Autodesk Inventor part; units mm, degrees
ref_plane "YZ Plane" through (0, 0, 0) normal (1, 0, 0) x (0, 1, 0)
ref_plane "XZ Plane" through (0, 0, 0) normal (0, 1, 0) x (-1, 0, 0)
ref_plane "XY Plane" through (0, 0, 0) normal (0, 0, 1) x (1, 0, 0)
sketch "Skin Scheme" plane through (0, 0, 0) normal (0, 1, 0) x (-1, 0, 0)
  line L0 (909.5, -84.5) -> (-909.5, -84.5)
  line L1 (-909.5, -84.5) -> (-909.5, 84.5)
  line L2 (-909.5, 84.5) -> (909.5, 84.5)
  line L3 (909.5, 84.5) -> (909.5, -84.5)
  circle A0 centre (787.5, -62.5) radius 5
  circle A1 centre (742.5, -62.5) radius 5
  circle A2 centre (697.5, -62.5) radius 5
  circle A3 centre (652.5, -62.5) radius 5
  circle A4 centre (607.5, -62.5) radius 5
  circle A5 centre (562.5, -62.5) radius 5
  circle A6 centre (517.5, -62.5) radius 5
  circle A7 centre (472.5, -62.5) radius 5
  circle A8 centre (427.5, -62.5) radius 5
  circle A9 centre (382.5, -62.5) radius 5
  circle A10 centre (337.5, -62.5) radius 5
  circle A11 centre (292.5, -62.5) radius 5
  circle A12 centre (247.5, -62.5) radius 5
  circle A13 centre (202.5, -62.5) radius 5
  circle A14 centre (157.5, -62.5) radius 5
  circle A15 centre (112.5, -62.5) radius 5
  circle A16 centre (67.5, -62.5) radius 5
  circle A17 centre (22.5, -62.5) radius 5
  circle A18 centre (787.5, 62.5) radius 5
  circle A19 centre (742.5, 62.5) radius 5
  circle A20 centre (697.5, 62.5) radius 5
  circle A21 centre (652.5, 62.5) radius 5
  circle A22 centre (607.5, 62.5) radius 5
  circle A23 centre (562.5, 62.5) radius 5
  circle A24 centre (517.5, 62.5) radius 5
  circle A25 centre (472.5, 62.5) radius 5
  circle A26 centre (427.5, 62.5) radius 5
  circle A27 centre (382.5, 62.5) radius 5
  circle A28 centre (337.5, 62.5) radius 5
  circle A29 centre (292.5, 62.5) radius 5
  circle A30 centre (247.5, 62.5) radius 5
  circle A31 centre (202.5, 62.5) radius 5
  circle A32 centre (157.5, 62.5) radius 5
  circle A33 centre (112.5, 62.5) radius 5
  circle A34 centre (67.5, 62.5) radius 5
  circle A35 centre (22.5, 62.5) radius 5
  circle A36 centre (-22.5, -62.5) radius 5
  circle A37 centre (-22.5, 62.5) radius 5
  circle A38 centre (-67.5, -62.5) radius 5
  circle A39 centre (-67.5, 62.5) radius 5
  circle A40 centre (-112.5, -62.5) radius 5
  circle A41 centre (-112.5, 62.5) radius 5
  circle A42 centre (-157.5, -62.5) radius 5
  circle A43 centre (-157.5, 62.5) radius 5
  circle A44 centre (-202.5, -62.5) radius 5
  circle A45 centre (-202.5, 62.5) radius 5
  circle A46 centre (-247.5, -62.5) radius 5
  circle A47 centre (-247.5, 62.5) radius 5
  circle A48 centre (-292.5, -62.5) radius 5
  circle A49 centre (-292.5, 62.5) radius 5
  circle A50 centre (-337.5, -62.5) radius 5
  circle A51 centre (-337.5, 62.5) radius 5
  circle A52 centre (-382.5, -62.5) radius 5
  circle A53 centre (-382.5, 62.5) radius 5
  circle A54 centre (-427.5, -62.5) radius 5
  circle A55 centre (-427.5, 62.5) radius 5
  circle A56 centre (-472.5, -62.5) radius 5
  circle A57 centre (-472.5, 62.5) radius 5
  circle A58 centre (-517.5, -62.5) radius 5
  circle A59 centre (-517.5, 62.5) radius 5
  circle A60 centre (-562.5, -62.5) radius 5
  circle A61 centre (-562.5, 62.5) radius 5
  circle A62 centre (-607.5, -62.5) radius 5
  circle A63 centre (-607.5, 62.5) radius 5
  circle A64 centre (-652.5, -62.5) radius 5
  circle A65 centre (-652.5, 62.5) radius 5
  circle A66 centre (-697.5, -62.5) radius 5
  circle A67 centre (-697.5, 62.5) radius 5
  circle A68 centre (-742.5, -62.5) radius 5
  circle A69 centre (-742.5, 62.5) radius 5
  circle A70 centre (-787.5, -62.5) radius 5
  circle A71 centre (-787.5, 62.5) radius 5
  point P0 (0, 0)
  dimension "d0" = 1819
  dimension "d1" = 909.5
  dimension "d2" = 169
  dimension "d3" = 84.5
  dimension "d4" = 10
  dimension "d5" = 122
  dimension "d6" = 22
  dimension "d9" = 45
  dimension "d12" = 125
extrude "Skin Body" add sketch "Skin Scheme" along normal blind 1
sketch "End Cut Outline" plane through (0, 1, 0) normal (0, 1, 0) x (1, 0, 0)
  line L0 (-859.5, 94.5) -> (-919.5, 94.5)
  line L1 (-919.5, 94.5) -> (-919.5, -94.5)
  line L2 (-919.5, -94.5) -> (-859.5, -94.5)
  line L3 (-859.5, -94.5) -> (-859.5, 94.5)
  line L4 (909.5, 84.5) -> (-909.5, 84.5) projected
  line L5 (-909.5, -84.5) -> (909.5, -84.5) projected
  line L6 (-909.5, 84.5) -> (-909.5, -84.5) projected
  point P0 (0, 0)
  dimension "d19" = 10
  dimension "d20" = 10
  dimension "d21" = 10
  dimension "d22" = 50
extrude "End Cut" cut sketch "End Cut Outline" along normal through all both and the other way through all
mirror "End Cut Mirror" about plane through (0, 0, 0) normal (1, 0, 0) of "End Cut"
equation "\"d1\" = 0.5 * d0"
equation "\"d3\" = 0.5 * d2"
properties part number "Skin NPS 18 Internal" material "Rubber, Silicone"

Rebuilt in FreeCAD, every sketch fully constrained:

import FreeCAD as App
import Part
import Sketcher


def add_polygon(sketch, points):
    """Adds a closed chain of lines whose ends are joined by coincident constraints."""
    first, n = sketch.GeometryCount, len(points)
    for a, b in zip(points, points[1:] + points[:1]):
        sketch.addGeometry(Part.LineSegment(App.Vector(*a, 0), App.Vector(*b, 0)), False)
    for i in range(n):
        sketch.addConstraint(Sketcher.Constraint("Coincident", first + i, 2, first + (i + 1) % n, 1))

doc = App.newDocument("Part")
body = doc.addObject("PartDesign::Body", "Body")

# Sketch on XZ plane
sketch1 = body.newObject("Sketcher::SketchObject", "Sketch")
sketch1.AttachmentSupport = (doc.getObject("XZ_Plane"), [""])
sketch1.MapMode = "FlatFace"
add_polygon(sketch1, [(910, -84), (-910, -84), (-910, 84), (910, 84)])  # lines 0-3
sketch1.addGeometry(Part.Circle(App.Vector(788, -62, 0), App.Vector(0, 0, 1), 5), False)  # 4
sketch1.addGeometry(Part.Circle(App.Vector(742, -62, 0), App.Vector(0, 0, 1), 5), False)  # 5
sketch1.addGeometry(Part.Circle(App.Vector(698, -62, 0), App.Vector(0, 0, 1), 5), False)  # 6
sketch1.addGeometry(Part.Circle(App.Vector(652, -62, 0), App.Vector(0, 0, 1), 5), False)  # 7
sketch1.addGeometry(Part.Circle(App.Vector(608, -62, 0), App.Vector(0, 0, 1), 5), False)  # 8
sketch1.addGeometry(Part.Circle(App.Vector(562, -62, 0), App.Vector(0, 0, 1), 5), False)  # 9
sketch1.addGeometry(Part.Circle(App.Vector(518, -62, 0), App.Vector(0, 0, 1), 5), False)  # 10
sketch1.addGeometry(Part.Circle(App.Vector(472, -62, 0), App.Vector(0, 0, 1), 5), False)  # 11
sketch1.addGeometry(Part.Circle(App.Vector(428, -62, 0), App.Vector(0, 0, 1), 5), False)  # 12
sketch1.addGeometry(Part.Circle(App.Vector(382, -62, 0), App.Vector(0, 0, 1), 5), False)  # 13
sketch1.addGeometry(Part.Circle(App.Vector(338, -62, 0), App.Vector(0, 0, 1), 5), False)  # 14
sketch1.addGeometry(Part.Circle(App.Vector(292, -62, 0), App.Vector(0, 0, 1), 5), False)  # 15
sketch1.addGeometry(Part.Circle(App.Vector(248, -62, 0), App.Vector(0, 0, 1), 5), False)  # 16
sketch1.addGeometry(Part.Circle(App.Vector(202, -62, 0), App.Vector(0, 0, 1), 5), False)  # 17
sketch1.addGeometry(Part.Circle(App.Vector(158, -62, 0), App.Vector(0, 0, 1), 5), False)  # 18
sketch1.addGeometry(Part.Circle(App.Vector(112, -62, 0), App.Vector(0, 0, 1), 5), False)  # 19
sketch1.addGeometry(Part.Circle(App.Vector(68, -62, 0), App.Vector(0, 0, 1), 5), False)  # 20
sketch1.addGeometry(Part.Circle(App.Vector(22, -62, 0), App.Vector(0, 0, 1), 5), False)  # 21
sketch1.addGeometry(Part.Circle(App.Vector(-22, -62, 0), App.Vector(0, 0, 1), 5), False)  # 22
sketch1.addGeometry(Part.Circle(App.Vector(-68, -62, 0), App.Vector(0, 0, 1), 5), False)  # 23
sketch1.addGeometry(Part.Circle(App.Vector(-112, -62, 0), App.Vector(0, 0, 1), 5), False)  # 24
sketch1.addGeometry(Part.Circle(App.Vector(-158, -62, 0), App.Vector(0, 0, 1), 5), False)  # 25
sketch1.addGeometry(Part.Circle(App.Vector(-202, -62, 0), App.Vector(0, 0, 1), 5), False)  # 26
sketch1.addGeometry(Part.Circle(App.Vector(-248, -62, 0), App.Vector(0, 0, 1), 5), False)  # 27
sketch1.addGeometry(Part.Circle(App.Vector(-292, -62, 0), App.Vector(0, 0, 1), 5), False)  # 28
sketch1.addGeometry(Part.Circle(App.Vector(-338, -62, 0), App.Vector(0, 0, 1), 5), False)  # 29
sketch1.addGeometry(Part.Circle(App.Vector(-382, -62, 0), App.Vector(0, 0, 1), 5), False)  # 30
sketch1.addGeometry(Part.Circle(App.Vector(-428, -62, 0), App.Vector(0, 0, 1), 5), False)  # 31
sketch1.addGeometry(Part.Circle(App.Vector(-472, -62, 0), App.Vector(0, 0, 1), 5), False)  # 32
sketch1.addGeometry(Part.Circle(App.Vector(-518, -62, 0), App.Vector(0, 0, 1), 5), False)  # 33
sketch1.addGeometry(Part.Circle(App.Vector(-562, -62, 0), App.Vector(0, 0, 1), 5), False)  # 34
sketch1.addGeometry(Part.Circle(App.Vector(-608, -62, 0), App.Vector(0, 0, 1), 5), False)  # 35
sketch1.addGeometry(Part.Circle(App.Vector(-652, -62, 0), App.Vector(0, 0, 1), 5), False)  # 36
sketch1.addGeometry(Part.Circle(App.Vector(-698, -62, 0), App.Vector(0, 0, 1), 5), False)  # 37
sketch1.addGeometry(Part.Circle(App.Vector(-742, -62, 0), App.Vector(0, 0, 1), 5), False)  # 38
sketch1.addGeometry(Part.Circle(App.Vector(-788, -62, 0), App.Vector(0, 0, 1), 5), False)  # 39
sketch1.addGeometry(Part.Circle(App.Vector(788, 62, 0), App.Vector(0, 0, 1), 5), False)  # 40
sketch1.addGeometry(Part.Circle(App.Vector(742, 62, 0), App.Vector(0, 0, 1), 5), False)  # 41
sketch1.addGeometry(Part.Circle(App.Vector(698, 62, 0), App.Vector(0, 0, 1), 5), False)  # 42
sketch1.addGeometry(Part.Circle(App.Vector(652, 62, 0), App.Vector(0, 0, 1), 5), False)  # 43
sketch1.addGeometry(Part.Circle(App.Vector(608, 62, 0), App.Vector(0, 0, 1), 5), False)  # 44
sketch1.addGeometry(Part.Circle(App.Vector(562, 62, 0), App.Vector(0, 0, 1), 5), False)  # 45
sketch1.addGeometry(Part.Circle(App.Vector(518, 62, 0), App.Vector(0, 0, 1), 5), False)  # 46
sketch1.addGeometry(Part.Circle(App.Vector(472, 62, 0), App.Vector(0, 0, 1), 5), False)  # 47
sketch1.addGeometry(Part.Circle(App.Vector(428, 62, 0), App.Vector(0, 0, 1), 5), False)  # 48
sketch1.addGeometry(Part.Circle(App.Vector(382, 62, 0), App.Vector(0, 0, 1), 5), False)  # 49
sketch1.addGeometry(Part.Circle(App.Vector(338, 62, 0), App.Vector(0, 0, 1), 5), False)  # 50
sketch1.addGeometry(Part.Circle(App.Vector(292, 62, 0), App.Vector(0, 0, 1), 5), False)  # 51
sketch1.addGeometry(Part.Circle(App.Vector(248, 62, 0), App.Vector(0, 0, 1), 5), False)  # 52
sketch1.addGeometry(Part.Circle(App.Vector(202, 62, 0), App.Vector(0, 0, 1), 5), False)  # 53
sketch1.addGeometry(Part.Circle(App.Vector(158, 62, 0), App.Vector(0, 0, 1), 5), False)  # 54
sketch1.addGeometry(Part.Circle(App.Vector(112, 62, 0), App.Vector(0, 0, 1), 5), False)  # 55
sketch1.addGeometry(Part.Circle(App.Vector(68, 62, 0), App.Vector(0, 0, 1), 5), False)  # 56
sketch1.addGeometry(Part.Circle(App.Vector(22, 62, 0), App.Vector(0, 0, 1), 5), False)  # 57
sketch1.addGeometry(Part.Circle(App.Vector(-22, 62, 0), App.Vector(0, 0, 1), 5), False)  # 58
sketch1.addGeometry(Part.Circle(App.Vector(-68, 62, 0), App.Vector(0, 0, 1), 5), False)  # 59
sketch1.addGeometry(Part.Circle(App.Vector(-112, 62, 0), App.Vector(0, 0, 1), 5), False)  # 60
sketch1.addGeometry(Part.Circle(App.Vector(-158, 62, 0), App.Vector(0, 0, 1), 5), False)  # 61
sketch1.addGeometry(Part.Circle(App.Vector(-202, 62, 0), App.Vector(0, 0, 1), 5), False)  # 62
sketch1.addGeometry(Part.Circle(App.Vector(-248, 62, 0), App.Vector(0, 0, 1), 5), False)  # 63
sketch1.addGeometry(Part.Circle(App.Vector(-292, 62, 0), App.Vector(0, 0, 1), 5), False)  # 64
sketch1.addGeometry(Part.Circle(App.Vector(-338, 62, 0), App.Vector(0, 0, 1), 5), False)  # 65
sketch1.addGeometry(Part.Circle(App.Vector(-382, 62, 0), App.Vector(0, 0, 1), 5), False)  # 66
sketch1.addGeometry(Part.Circle(App.Vector(-428, 62, 0), App.Vector(0, 0, 1), 5), False)  # 67
sketch1.addGeometry(Part.Circle(App.Vector(-472, 62, 0), App.Vector(0, 0, 1), 5), False)  # 68
sketch1.addGeometry(Part.Circle(App.Vector(-518, 62, 0), App.Vector(0, 0, 1), 5), False)  # 69
sketch1.addGeometry(Part.Circle(App.Vector(-562, 62, 0), App.Vector(0, 0, 1), 5), False)  # 70
sketch1.addGeometry(Part.Circle(App.Vector(-608, 62, 0), App.Vector(0, 0, 1), 5), False)  # 71
sketch1.addGeometry(Part.Circle(App.Vector(-652, 62, 0), App.Vector(0, 0, 1), 5), False)  # 72
sketch1.addGeometry(Part.Circle(App.Vector(-698, 62, 0), App.Vector(0, 0, 1), 5), False)  # 73
sketch1.addGeometry(Part.Circle(App.Vector(-742, 62, 0), App.Vector(0, 0, 1), 5), False)  # 74
sketch1.addGeometry(Part.Circle(App.Vector(-788, 62, 0), App.Vector(0, 0, 1), 5), False)  # 75
sketch1.addConstraint(Sketcher.Constraint("Horizontal", 0))
sketch1.addConstraint(Sketcher.Constraint("Vertical", 1))
sketch1.addConstraint(Sketcher.Constraint("Horizontal", 2))
sketch1.addConstraint(Sketcher.Constraint("Vertical", 3))
sketch1.addConstraint(Sketcher.Constraint("Equal", 4, 5))
sketch1.addConstraint(Sketcher.Constraint("Equal", 5, 6))
sketch1.addConstraint(Sketcher.Constraint("Equal", 6, 7))
sketch1.addConstraint(Sketcher.Constraint("Equal", 7, 8))
sketch1.addConstraint(Sketcher.Constraint("Equal", 8, 9))
sketch1.addConstraint(Sketcher.Constraint("Equal", 9, 10))
sketch1.addConstraint(Sketcher.Constraint("Equal", 10, 11))
sketch1.addConstraint(Sketcher.Constraint("Equal", 11, 12))
sketch1.addConstraint(Sketcher.Constraint("Equal", 12, 13))
sketch1.addConstraint(Sketcher.Constraint("Equal", 13, 14))
sketch1.addConstraint(Sketcher.Constraint("Equal", 14, 15))
sketch1.addConstraint(Sketcher.Constraint("Equal", 15, 16))
sketch1.addConstraint(Sketcher.Constraint("Equal", 16, 17))
sketch1.addConstraint(Sketcher.Constraint("Equal", 17, 18))
sketch1.addConstraint(Sketcher.Constraint("Equal", 18, 19))
sketch1.addConstraint(Sketcher.Constraint("Equal", 19, 20))
sketch1.addConstraint(Sketcher.Constraint("Equal", 20, 21))
sketch1.addConstraint(Sketcher.Constraint("Equal", 21, 22))
sketch1.addConstraint(Sketcher.Constraint("Equal", 22, 23))
sketch1.addConstraint(Sketcher.Constraint("Equal", 23, 24))
sketch1.addConstraint(Sketcher.Constraint("Equal", 24, 25))
sketch1.addConstraint(Sketcher.Constraint("Equal", 25, 26))
sketch1.addConstraint(Sketcher.Constraint("Equal", 26, 27))
sketch1.addConstraint(Sketcher.Constraint("Equal", 27, 28))
sketch1.addConstraint(Sketcher.Constraint("Equal", 28, 29))
sketch1.addConstraint(Sketcher.Constraint("Equal", 29, 30))
sketch1.addConstraint(Sketcher.Constraint("Equal", 30, 31))
sketch1.addConstraint(Sketcher.Constraint("Equal", 31, 32))
sketch1.addConstraint(Sketcher.Constraint("Equal", 32, 33))
sketch1.addConstraint(Sketcher.Constraint("Equal", 33, 34))
sketch1.addConstraint(Sketcher.Constraint("Equal", 34, 35))
sketch1.addConstraint(Sketcher.Constraint("Equal", 35, 36))
sketch1.addConstraint(Sketcher.Constraint("Equal", 36, 37))
sketch1.addConstraint(Sketcher.Constraint("Equal", 37, 38))
sketch1.addConstraint(Sketcher.Constraint("Equal", 38, 39))
sketch1.addConstraint(Sketcher.Constraint("Equal", 39, 40))
sketch1.addConstraint(Sketcher.Constraint("Equal", 40, 41))
sketch1.addConstraint(Sketcher.Constraint("Equal", 41, 42))
sketch1.addConstraint(Sketcher.Constraint("Equal", 42, 43))
sketch1.addConstraint(Sketcher.Constraint("Equal", 43, 44))
sketch1.addConstraint(Sketcher.Constraint("Equal", 44, 45))
sketch1.addConstraint(Sketcher.Constraint("Equal", 45, 46))
sketch1.addConstraint(Sketcher.Constraint("Equal", 46, 47))
sketch1.addConstraint(Sketcher.Constraint("Equal", 47, 48))
sketch1.addConstraint(Sketcher.Constraint("Equal", 48, 49))
sketch1.addConstraint(Sketcher.Constraint("Equal", 49, 50))
sketch1.addConstraint(Sketcher.Constraint("Equal", 50, 51))
sketch1.addConstraint(Sketcher.Constraint("Equal", 51, 52))
sketch1.addConstraint(Sketcher.Constraint("Equal", 52, 53))
sketch1.addConstraint(Sketcher.Constraint("Equal", 53, 54))
sketch1.addConstraint(Sketcher.Constraint("Equal", 54, 55))
sketch1.addConstraint(Sketcher.Constraint("Equal", 55, 56))
sketch1.addConstraint(Sketcher.Constraint("Equal", 56, 57))
sketch1.addConstraint(Sketcher.Constraint("Equal", 57, 58))
sketch1.addConstraint(Sketcher.Constraint("Equal", 58, 59))
sketch1.addConstraint(Sketcher.Constraint("Equal", 59, 60))
sketch1.addConstraint(Sketcher.Constraint("Equal", 60, 61))
sketch1.addConstraint(Sketcher.Constraint("Equal", 61, 62))
sketch1.addConstraint(Sketcher.Constraint("Equal", 62, 63))
sketch1.addConstraint(Sketcher.Constraint("Equal", 63, 64))
sketch1.addConstraint(Sketcher.Constraint("Equal", 64, 65))
sketch1.addConstraint(Sketcher.Constraint("Equal", 65, 66))
sketch1.addConstraint(Sketcher.Constraint("Equal", 66, 67))
sketch1.addConstraint(Sketcher.Constraint("Equal", 67, 68))
sketch1.addConstraint(Sketcher.Constraint("Equal", 68, 69))
sketch1.addConstraint(Sketcher.Constraint("Equal", 69, 70))
sketch1.addConstraint(Sketcher.Constraint("Equal", 70, 71))
sketch1.addConstraint(Sketcher.Constraint("Equal", 71, 72))
sketch1.addConstraint(Sketcher.Constraint("Equal", 72, 73))
sketch1.addConstraint(Sketcher.Constraint("Equal", 73, 74))
sketch1.addConstraint(Sketcher.Constraint("Equal", 74, 75))
sketch1.addConstraint(Sketcher.Constraint("Symmetric", 39, 3, 40, 3, -1, 1))
sketch1.addConstraint(Sketcher.Constraint("Symmetric", 38, 3, 41, 3, -1, 1))
sketch1.addConstraint(Sketcher.Constraint("Symmetric", 37, 3, 42, 3, -1, 1))
sketch1.addConstraint(Sketcher.Constraint("Symmetric", 36, 3, 43, 3, -1, 1))
sketch1.addConstraint(Sketcher.Constraint("Symmetric", 35, 3, 44, 3, -1, 1))
sketch1.addConstraint(Sketcher.Constraint("Symmetric", 34, 3, 45, 3, -1, 1))
sketch1.addConstraint(Sketcher.Constraint("Symmetric", 33, 3, 46, 3, -1, 1))
sketch1.addConstraint(Sketcher.Constraint("Symmetric", 32, 3, 47, 3, -1, 1))
sketch1.addConstraint(Sketcher.Constraint("Symmetric", 31, 3, 48, 3, -1, 1))
sketch1.addConstraint(Sketcher.Constraint("Symmetric", 30, 3, 49, 3, -1, 1))
sketch1.addConstraint(Sketcher.Constraint("Symmetric", 29, 3, 50, 3, -1, 1))
sketch1.addConstraint(Sketcher.Constraint("Symmetric", 28, 3, 51, 3, -1, 1))
sketch1.addConstraint(Sketcher.Constraint("Symmetric", 27, 3, 52, 3, -1, 1))
sketch1.addConstraint(Sketcher.Constraint("Symmetric", 26, 3, 53, 3, -1, 1))
sketch1.addConstraint(Sketcher.Constraint("Symmetric", 25, 3, 54, 3, -1, 1))
sketch1.addConstraint(Sketcher.Constraint("Symmetric", 24, 3, 55, 3, -1, 1))
sketch1.addConstraint(Sketcher.Constraint("Symmetric", 23, 3, 56, 3, -1, 1))
sketch1.addConstraint(Sketcher.Constraint("Symmetric", 22, 3, 57, 3, -1, 1))
sketch1.addConstraint(Sketcher.Constraint("Symmetric", 21, 3, 58, 3, -1, 1))
sketch1.addConstraint(Sketcher.Constraint("Symmetric", 20, 3, 59, 3, -1, 1))
sketch1.addConstraint(Sketcher.Constraint("Symmetric", 19, 3, 60, 3, -1, 1))
sketch1.addConstraint(Sketcher.Constraint("Symmetric", 18, 3, 61, 3, -1, 1))
sketch1.addConstraint(Sketcher.Constraint("Symmetric", 17, 3, 62, 3, -1, 1))
sketch1.addConstraint(Sketcher.Constraint("Symmetric", 16, 3, 63, 3, -1, 1))
sketch1.addConstraint(Sketcher.Constraint("Symmetric", 15, 3, 64, 3, -1, 1))
sketch1.addConstraint(Sketcher.Constraint("Symmetric", 14, 3, 65, 3, -1, 1))
sketch1.addConstraint(Sketcher.Constraint("Symmetric", 13, 3, 66, 3, -1, 1))
sketch1.addConstraint(Sketcher.Constraint("Symmetric", 12, 3, 67, 3, -1, 1))
sketch1.addConstraint(Sketcher.Constraint("Symmetric", 11, 3, 68, 3, -1, 1))
sketch1.addConstraint(Sketcher.Constraint("Symmetric", 10, 3, 69, 3, -1, 1))
sketch1.addConstraint(Sketcher.Constraint("Symmetric", 9, 3, 70, 3, -1, 1))
sketch1.addConstraint(Sketcher.Constraint("Symmetric", 8, 3, 71, 3, -1, 1))
sketch1.addConstraint(Sketcher.Constraint("Symmetric", 7, 3, 72, 3, -1, 1))
sketch1.addConstraint(Sketcher.Constraint("Symmetric", 6, 3, 73, 3, -1, 1))
sketch1.addConstraint(Sketcher.Constraint("Symmetric", 5, 3, 74, 3, -1, 1))
sketch1.addConstraint(Sketcher.Constraint("Symmetric", 4, 3, 75, 3, -1, 1))
sketch1.addConstraint(Sketcher.Constraint("Symmetric", 0, 2, 2, 2, -1, 1))
sketch1.addConstraint(Sketcher.Constraint("Symmetric", 21, 3, 22, 3, -2))
sketch1.addConstraint(Sketcher.Constraint("Symmetric", 20, 3, 23, 3, -2))
sketch1.addConstraint(Sketcher.Constraint("Symmetric", 19, 3, 24, 3, -2))
sketch1.addConstraint(Sketcher.Constraint("Symmetric", 18, 3, 25, 3, -2))
sketch1.addConstraint(Sketcher.Constraint("Symmetric", 17, 3, 26, 3, -2))
sketch1.addConstraint(Sketcher.Constraint("Symmetric", 16, 3, 27, 3, -2))
sketch1.addConstraint(Sketcher.Constraint("Symmetric", 15, 3, 28, 3, -2))
sketch1.addConstraint(Sketcher.Constraint("Symmetric", 14, 3, 29, 3, -2))
sketch1.addConstraint(Sketcher.Constraint("Symmetric", 13, 3, 30, 3, -2))
sketch1.addConstraint(Sketcher.Constraint("Symmetric", 12, 3, 31, 3, -2))
sketch1.addConstraint(Sketcher.Constraint("Symmetric", 11, 3, 32, 3, -2))
sketch1.addConstraint(Sketcher.Constraint("Symmetric", 10, 3, 33, 3, -2))
sketch1.addConstraint(Sketcher.Constraint("Symmetric", 9, 3, 34, 3, -2))
sketch1.addConstraint(Sketcher.Constraint("Symmetric", 8, 3, 35, 3, -2))
sketch1.addConstraint(Sketcher.Constraint("Symmetric", 7, 3, 36, 3, -2))
sketch1.addConstraint(Sketcher.Constraint("Symmetric", 6, 3, 37, 3, -2))
sketch1.addConstraint(Sketcher.Constraint("Symmetric", 5, 3, 38, 3, -2))
sketch1.addConstraint(Sketcher.Constraint("Symmetric", 4, 3, 39, 3, -2))
sketch1.addConstraint(Sketcher.Constraint("Horizontal", 4, 3, 5, 3))
sketch1.addConstraint(Sketcher.Constraint("Horizontal", 5, 3, 6, 3))
sketch1.addConstraint(Sketcher.Constraint("Horizontal", 6, 3, 7, 3))
sketch1.addConstraint(Sketcher.Constraint("Horizontal", 7, 3, 8, 3))
sketch1.addConstraint(Sketcher.Constraint("Horizontal", 8, 3, 9, 3))
sketch1.addConstraint(Sketcher.Constraint("Horizontal", 9, 3, 10, 3))
sketch1.addConstraint(Sketcher.Constraint("Horizontal", 10, 3, 11, 3))
sketch1.addConstraint(Sketcher.Constraint("Horizontal", 11, 3, 12, 3))
sketch1.addConstraint(Sketcher.Constraint("Horizontal", 12, 3, 13, 3))
sketch1.addConstraint(Sketcher.Constraint("Horizontal", 13, 3, 14, 3))
sketch1.addConstraint(Sketcher.Constraint("Horizontal", 14, 3, 15, 3))
sketch1.addConstraint(Sketcher.Constraint("Horizontal", 15, 3, 16, 3))
sketch1.addConstraint(Sketcher.Constraint("Horizontal", 16, 3, 17, 3))
sketch1.addConstraint(Sketcher.Constraint("Horizontal", 17, 3, 18, 3))
sketch1.addConstraint(Sketcher.Constraint("Horizontal", 18, 3, 19, 3))
sketch1.addConstraint(Sketcher.Constraint("Horizontal", 19, 3, 20, 3))
sketch1.addConstraint(Sketcher.Constraint("Horizontal", 20, 3, 21, 3))
sketch1.addConstraint(Sketcher.Constraint("Diameter", 4, 10.0))
sketch1.addConstraint(Sketcher.Constraint("DistanceX", 0, 2, 0, 1, 1819.0))
sketch1.addConstraint(Sketcher.Constraint("DistanceY", 1, 1, 1, 2, 169.0))
sketch1.addConstraint(Sketcher.Constraint("DistanceX", -1, 1, 4, 3, 787.5))
sketch1.addConstraint(Sketcher.Constraint("DistanceY", 4, 3, -1, 1, 62.5))
sketch1.addConstraint(Sketcher.Constraint("DistanceX", -1, 1, 5, 3, 742.5))
sketch1.addConstraint(Sketcher.Constraint("DistanceX", -1, 1, 6, 3, 697.5))
sketch1.addConstraint(Sketcher.Constraint("DistanceX", -1, 1, 7, 3, 652.5))
sketch1.addConstraint(Sketcher.Constraint("DistanceX", -1, 1, 8, 3, 607.5))
sketch1.addConstraint(Sketcher.Constraint("DistanceX", -1, 1, 9, 3, 562.5))
sketch1.addConstraint(Sketcher.Constraint("DistanceX", -1, 1, 10, 3, 517.5))
sketch1.addConstraint(Sketcher.Constraint("DistanceX", -1, 1, 11, 3, 472.5))
sketch1.addConstraint(Sketcher.Constraint("DistanceX", -1, 1, 12, 3, 427.5))
sketch1.addConstraint(Sketcher.Constraint("DistanceX", -1, 1, 13, 3, 382.5))
sketch1.addConstraint(Sketcher.Constraint("DistanceX", -1, 1, 14, 3, 337.5))
sketch1.addConstraint(Sketcher.Constraint("DistanceX", -1, 1, 15, 3, 292.5))
sketch1.addConstraint(Sketcher.Constraint("DistanceX", -1, 1, 16, 3, 247.5))
sketch1.addConstraint(Sketcher.Constraint("DistanceX", -1, 1, 17, 3, 202.5))
sketch1.addConstraint(Sketcher.Constraint("DistanceX", -1, 1, 18, 3, 157.5))
sketch1.addConstraint(Sketcher.Constraint("DistanceX", -1, 1, 19, 3, 112.5))
sketch1.addConstraint(Sketcher.Constraint("DistanceX", -1, 1, 20, 3, 67.5))
sketch1.addConstraint(Sketcher.Constraint("DistanceX", -1, 1, 21, 3, 22.5))
pad1 = body.newObject("PartDesign::Pad", "Pad")
pad1.Profile = sketch1
pad1.Length = 1
pad1.Reversed = True

# Sketch on XZ plane
sketch2 = body.newObject("Sketcher::SketchObject", "Sketch001")
sketch2.AttachmentSupport = (doc.getObject("XZ_Plane"), [""])
sketch2.MapMode = "FlatFace"
sketch2.AttachmentOffset = App.Placement(App.Vector(0, 0, -1), App.Rotation())
add_polygon(sketch2, [(-860, -94), (-920, -94), (-920, 94), (-860, 94)])  # lines 0-3
sketch2.addConstraint(Sketcher.Constraint("Horizontal", 0))
sketch2.addConstraint(Sketcher.Constraint("Vertical", 1))
sketch2.addConstraint(Sketcher.Constraint("Horizontal", 2))
sketch2.addConstraint(Sketcher.Constraint("Vertical", 3))
sketch2.addConstraint(Sketcher.Constraint("DistanceX", 0, 2, 0, 1, 60.0))
sketch2.addConstraint(Sketcher.Constraint("DistanceY", 1, 1, 1, 2, 189.0))
sketch2.addConstraint(Sketcher.Constraint("DistanceX", 0, 2, -1, 1, 919.5))
sketch2.addConstraint(Sketcher.Constraint("DistanceY", 0, 2, -1, 1, 94.5))
pocket1 = body.newObject("PartDesign::Pocket", "Pocket")
pocket1.Profile = sketch2
pocket1.Type = "ThroughAll"
pocket1.Midplane = True
doc.recompute()

mirrored = body.newObject("PartDesign::Mirrored", "Mirrored")
mirrored.Originals = [pocket1]
mirrored.MirrorPlane = (doc.getObject("YZ_Plane"), [""])
body.Tip = mirrored

doc.recompute()
